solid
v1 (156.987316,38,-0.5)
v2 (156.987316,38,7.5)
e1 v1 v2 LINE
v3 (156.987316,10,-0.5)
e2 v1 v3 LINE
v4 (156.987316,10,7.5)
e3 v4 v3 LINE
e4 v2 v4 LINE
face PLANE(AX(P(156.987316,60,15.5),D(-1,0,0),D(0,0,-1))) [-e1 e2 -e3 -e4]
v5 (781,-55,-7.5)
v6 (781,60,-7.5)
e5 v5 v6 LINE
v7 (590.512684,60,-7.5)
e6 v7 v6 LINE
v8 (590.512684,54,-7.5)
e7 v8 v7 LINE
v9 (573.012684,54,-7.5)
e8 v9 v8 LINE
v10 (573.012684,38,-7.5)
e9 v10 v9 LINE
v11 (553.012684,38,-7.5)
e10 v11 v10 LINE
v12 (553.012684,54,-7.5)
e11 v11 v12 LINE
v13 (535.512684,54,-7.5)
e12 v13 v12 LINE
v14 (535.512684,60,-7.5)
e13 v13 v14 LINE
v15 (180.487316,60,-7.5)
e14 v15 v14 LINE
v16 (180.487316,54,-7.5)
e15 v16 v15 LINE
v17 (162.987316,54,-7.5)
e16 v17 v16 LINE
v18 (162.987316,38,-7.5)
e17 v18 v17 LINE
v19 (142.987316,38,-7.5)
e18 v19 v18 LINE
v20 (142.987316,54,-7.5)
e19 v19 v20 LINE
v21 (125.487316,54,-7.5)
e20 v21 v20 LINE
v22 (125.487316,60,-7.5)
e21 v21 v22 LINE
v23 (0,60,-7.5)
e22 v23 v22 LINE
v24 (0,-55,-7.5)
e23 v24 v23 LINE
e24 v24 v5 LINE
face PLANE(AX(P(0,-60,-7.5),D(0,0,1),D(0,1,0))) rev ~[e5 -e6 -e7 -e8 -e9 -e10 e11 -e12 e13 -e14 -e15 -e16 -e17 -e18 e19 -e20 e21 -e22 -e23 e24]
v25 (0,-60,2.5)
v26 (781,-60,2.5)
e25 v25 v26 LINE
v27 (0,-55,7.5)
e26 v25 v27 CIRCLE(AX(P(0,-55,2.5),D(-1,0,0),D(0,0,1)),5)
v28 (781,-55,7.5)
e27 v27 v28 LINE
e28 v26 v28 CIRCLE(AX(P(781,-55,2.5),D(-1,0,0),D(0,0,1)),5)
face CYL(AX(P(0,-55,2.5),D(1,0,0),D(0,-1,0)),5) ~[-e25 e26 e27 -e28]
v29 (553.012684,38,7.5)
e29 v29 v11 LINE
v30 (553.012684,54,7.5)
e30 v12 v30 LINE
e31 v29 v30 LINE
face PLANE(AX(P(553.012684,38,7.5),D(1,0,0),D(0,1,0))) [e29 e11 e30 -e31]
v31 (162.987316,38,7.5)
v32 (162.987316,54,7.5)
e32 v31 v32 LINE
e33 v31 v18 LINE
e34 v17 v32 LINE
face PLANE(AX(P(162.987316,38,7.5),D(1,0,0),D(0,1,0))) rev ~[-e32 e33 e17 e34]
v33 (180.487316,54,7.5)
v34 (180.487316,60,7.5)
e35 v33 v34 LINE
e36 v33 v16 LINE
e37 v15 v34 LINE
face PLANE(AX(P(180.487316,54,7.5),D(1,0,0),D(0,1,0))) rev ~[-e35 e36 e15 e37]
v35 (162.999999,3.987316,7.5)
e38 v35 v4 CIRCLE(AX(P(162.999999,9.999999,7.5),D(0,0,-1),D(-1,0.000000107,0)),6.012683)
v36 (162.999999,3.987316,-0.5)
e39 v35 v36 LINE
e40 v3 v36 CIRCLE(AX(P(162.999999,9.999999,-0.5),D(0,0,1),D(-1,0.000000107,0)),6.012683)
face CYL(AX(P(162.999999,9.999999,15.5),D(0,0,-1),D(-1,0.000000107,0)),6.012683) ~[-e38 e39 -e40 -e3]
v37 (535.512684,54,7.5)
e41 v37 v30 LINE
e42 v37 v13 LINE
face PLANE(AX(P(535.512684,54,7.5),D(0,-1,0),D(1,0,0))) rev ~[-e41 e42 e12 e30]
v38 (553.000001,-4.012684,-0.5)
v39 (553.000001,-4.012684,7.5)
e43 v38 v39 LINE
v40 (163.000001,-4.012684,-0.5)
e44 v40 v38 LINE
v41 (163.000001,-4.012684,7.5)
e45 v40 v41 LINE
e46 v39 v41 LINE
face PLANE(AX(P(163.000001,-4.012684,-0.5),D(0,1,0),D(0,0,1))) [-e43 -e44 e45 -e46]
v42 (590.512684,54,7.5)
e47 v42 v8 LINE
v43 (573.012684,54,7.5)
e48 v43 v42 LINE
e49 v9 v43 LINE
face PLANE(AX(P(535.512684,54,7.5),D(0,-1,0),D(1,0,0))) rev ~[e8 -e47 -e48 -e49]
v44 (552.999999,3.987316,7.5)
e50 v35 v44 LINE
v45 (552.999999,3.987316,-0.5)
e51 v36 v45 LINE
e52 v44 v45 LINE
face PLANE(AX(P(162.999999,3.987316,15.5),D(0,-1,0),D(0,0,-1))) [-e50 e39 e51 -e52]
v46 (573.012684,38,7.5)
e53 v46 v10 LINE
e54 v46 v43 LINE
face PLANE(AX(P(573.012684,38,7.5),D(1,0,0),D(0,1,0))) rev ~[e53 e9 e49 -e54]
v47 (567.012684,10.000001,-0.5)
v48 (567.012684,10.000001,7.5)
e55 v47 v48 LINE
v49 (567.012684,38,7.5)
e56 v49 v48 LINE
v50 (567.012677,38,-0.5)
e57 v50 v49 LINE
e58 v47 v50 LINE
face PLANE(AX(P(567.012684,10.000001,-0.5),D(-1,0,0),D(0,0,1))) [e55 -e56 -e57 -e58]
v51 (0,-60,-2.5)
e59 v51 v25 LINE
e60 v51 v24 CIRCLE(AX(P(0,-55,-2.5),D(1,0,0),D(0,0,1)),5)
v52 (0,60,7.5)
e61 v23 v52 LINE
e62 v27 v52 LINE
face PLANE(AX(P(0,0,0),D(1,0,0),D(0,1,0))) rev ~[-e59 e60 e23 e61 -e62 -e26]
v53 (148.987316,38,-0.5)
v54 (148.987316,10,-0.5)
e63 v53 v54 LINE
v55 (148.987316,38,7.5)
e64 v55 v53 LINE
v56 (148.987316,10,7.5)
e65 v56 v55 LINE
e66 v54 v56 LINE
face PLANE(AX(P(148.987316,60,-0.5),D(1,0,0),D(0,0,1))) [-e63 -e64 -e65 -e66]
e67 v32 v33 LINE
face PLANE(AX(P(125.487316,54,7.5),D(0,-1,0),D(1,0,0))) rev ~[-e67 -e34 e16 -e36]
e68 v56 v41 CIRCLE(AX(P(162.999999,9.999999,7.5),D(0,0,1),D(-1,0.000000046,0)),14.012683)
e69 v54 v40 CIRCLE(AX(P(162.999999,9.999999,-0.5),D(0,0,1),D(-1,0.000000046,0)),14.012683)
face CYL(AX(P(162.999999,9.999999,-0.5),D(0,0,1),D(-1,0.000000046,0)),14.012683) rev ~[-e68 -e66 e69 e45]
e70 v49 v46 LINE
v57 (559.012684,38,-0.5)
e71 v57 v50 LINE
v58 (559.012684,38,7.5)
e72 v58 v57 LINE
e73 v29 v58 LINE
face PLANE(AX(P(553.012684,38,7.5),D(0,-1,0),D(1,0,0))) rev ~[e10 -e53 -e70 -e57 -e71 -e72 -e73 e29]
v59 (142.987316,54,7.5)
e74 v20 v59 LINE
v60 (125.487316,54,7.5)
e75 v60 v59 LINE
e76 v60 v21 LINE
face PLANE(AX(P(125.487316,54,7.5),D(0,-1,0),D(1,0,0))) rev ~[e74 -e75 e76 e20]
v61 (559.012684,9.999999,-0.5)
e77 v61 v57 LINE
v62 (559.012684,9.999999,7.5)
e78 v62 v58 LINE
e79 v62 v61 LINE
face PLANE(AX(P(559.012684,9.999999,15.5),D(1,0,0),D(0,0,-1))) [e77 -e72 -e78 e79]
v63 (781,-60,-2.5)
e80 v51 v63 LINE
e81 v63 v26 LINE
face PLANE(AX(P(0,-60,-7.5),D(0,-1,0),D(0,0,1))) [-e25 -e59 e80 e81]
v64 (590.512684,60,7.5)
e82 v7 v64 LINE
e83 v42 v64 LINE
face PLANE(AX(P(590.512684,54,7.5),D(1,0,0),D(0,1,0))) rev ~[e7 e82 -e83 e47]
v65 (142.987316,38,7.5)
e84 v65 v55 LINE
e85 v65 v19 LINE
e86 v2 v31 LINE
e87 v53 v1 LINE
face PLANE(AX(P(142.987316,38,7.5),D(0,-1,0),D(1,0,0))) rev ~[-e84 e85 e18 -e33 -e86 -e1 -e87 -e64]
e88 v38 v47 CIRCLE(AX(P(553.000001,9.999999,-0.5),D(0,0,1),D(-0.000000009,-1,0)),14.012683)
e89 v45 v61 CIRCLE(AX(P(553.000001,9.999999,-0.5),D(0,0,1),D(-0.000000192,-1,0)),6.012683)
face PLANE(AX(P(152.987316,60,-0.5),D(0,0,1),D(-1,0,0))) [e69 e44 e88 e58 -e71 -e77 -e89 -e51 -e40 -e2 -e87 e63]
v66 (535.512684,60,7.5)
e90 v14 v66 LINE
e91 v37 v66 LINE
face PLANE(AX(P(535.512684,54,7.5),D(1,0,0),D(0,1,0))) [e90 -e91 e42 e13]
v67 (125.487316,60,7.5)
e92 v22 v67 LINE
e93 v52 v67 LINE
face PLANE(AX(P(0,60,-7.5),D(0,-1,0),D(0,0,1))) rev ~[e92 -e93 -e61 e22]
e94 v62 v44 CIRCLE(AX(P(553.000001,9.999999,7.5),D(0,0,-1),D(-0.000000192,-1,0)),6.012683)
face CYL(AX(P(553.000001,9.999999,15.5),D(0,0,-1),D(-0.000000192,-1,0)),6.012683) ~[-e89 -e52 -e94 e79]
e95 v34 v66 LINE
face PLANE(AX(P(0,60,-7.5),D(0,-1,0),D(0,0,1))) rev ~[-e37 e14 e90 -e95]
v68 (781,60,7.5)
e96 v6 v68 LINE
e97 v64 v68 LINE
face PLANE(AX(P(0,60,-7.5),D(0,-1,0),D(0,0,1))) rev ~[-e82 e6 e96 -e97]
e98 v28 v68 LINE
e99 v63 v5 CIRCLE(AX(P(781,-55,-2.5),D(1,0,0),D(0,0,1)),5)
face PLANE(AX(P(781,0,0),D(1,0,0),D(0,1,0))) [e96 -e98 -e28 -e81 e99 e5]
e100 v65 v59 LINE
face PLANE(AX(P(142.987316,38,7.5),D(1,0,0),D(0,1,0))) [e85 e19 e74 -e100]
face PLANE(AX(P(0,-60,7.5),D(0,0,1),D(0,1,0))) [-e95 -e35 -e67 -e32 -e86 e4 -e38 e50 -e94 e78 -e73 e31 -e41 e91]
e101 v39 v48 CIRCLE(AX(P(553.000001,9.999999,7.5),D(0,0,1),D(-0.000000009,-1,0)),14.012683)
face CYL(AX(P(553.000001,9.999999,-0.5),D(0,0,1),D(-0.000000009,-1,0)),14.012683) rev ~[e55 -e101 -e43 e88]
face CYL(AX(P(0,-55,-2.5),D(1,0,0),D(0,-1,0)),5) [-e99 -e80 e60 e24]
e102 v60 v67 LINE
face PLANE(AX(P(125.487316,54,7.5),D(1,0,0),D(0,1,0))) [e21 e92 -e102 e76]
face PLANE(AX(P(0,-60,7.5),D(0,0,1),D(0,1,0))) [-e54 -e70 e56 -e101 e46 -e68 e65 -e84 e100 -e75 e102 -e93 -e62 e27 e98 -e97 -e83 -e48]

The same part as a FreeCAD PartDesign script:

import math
import FreeCAD as App
import Part
import Sketcher
from FreeCAD import Vector


def edges_at(feature, points):
    """Names of the edges that pass closest to the given points."""
    edges = feature.Shape.Edges
    near = lambda p: min(range(len(edges)), key=lambda i: edges[i].distToShape(Part.Vertex(*p))[0])
    return sorted({f"Edge{near(p) + 1}" for p in points})

doc = App.newDocument("Part")
body = doc.addObject("PartDesign::Body", "Body")

sketch1 = body.newObject("Sketcher::SketchObject", "Sketch")
sketch1.AttachmentSupport = (doc.getObject("YZ_Plane"), [""])
sketch1.MapMode = "FlatFace"
sketch1.addGeometry(Part.LineSegment(Vector(-60, 8, 0), Vector(-60, -8, 0)), False)
sketch1.addGeometry(Part.LineSegment(Vector(-60, -8, 0), Vector(60, -8, 0)), False)
sketch1.addGeometry(Part.LineSegment(Vector(60, -8, 0), Vector(60, 8, 0)), False)
sketch1.addGeometry(Part.LineSegment(Vector(60, 8, 0), Vector(-60, 8, 0)), False)
sketch1.addConstraint(Sketcher.Constraint("Coincident", 0, 2, 1, 1))
sketch1.addConstraint(Sketcher.Constraint("Coincident", 1, 2, 2, 1))
sketch1.addConstraint(Sketcher.Constraint("Coincident", 2, 2, 3, 1))
sketch1.addConstraint(Sketcher.Constraint("Coincident", 3, 2, 0, 1))
sketch1.addConstraint(Sketcher.Constraint("Vertical", 0))
sketch1.addConstraint(Sketcher.Constraint("Horizontal", 1))
sketch1.addConstraint(Sketcher.Constraint("Vertical", 2))
sketch1.addConstraint(Sketcher.Constraint("Horizontal", 3))
sketch1.addConstraint(Sketcher.Constraint("Symmetric", 0, 2, 2, 2, -1, 1))
sketch1.addConstraint(Sketcher.Constraint("DistanceX", 1, 1, 1, 2, 120.0))
sketch1.addConstraint(Sketcher.Constraint("DistanceY", 0, 2, 0, 1, 15.0))
pad1 = body.newObject("PartDesign::Pad", "Pad")
pad1.Profile = sketch1
pad1.Length = 781

sketch2 = body.newObject("Sketcher::SketchObject", "Sketch001")
sketch2.AttachmentSupport = (doc.getObject("XZ_Plane"), [""])
sketch2.MapMode = "FlatFace"
sketch2.AttachmentOffset = App.Placement(Vector(0, 0, -60), App.Rotation())
sketch2.addGeometry(Part.LineSegment(Vector(157, 16, 0), Vector(157, 0, 0)), False)
sketch2.addGeometry(Part.LineSegment(Vector(157, 0, 0), Vector(149, 0, 0)), False)
sketch2.addGeometry(Part.LineSegment(Vector(149, 0, 0), Vector(149, 16, 0)), False)
sketch2.addGeometry(Part.LineSegment(Vector(149, 16, 0), Vector(157, 16, 0)), False)
sketch2.addConstraint(Sketcher.Constraint("Coincident", 0, 2, 1, 1))
sketch2.addConstraint(Sketcher.Constraint("Coincident", 1, 2, 2, 1))
sketch2.addConstraint(Sketcher.Constraint("Coincident", 2, 2, 3, 1))
sketch2.addConstraint(Sketcher.Constraint("Coincident", 3, 2, 0, 1))
sketch2.addConstraint(Sketcher.Constraint("Vertical", 0))
sketch2.addConstraint(Sketcher.Constraint("Horizontal", 1))
sketch2.addConstraint(Sketcher.Constraint("Vertical", 2))
sketch2.addConstraint(Sketcher.Constraint("Horizontal", 3))
sketch2.addConstraint(Sketcher.Constraint("DistanceX", 1, 2, 1, 1, 8.0))
sketch2.addConstraint(Sketcher.Constraint("DistanceY", 0, 2, 0, 1, 16.0))
sketch2.addConstraint(Sketcher.Constraint("DistanceY", 0, 2, -1, 1, 0.5))
sketch2.addConstraint(Sketcher.Constraint("DistanceX", -1, 1, 0, 2, 156.987316))

sketch3 = body.newObject("Sketcher::SketchObject", "Sketch002")
sketch3.AttachmentSupport = (doc.getObject("XY_Plane"), [""])
sketch3.MapMode = "FlatFace"
sketch3.AttachmentOffset = App.Placement(Vector(0, 0, 7.5), App.Rotation())
sketch3.addGeometry(Part.LineSegment(Vector(153, 60, 0), Vector(153, 10, 0)), False)
sketch3.addGeometry(Part.ArcOfCircle(Part.Circle(Vector(163, 10, 0), Vector(0, 0, 1), 10), math.radians(180), math.radians(270)), False)
sketch3.addGeometry(Part.LineSegment(Vector(163, 0, 0), Vector(553, 0, 0)), False)
sketch3.addGeometry(Part.ArcOfCircle(Part.Circle(Vector(553, 10, 0), Vector(0, 0, 1), 10), math.radians(-90), math.radians(0)), False)
sketch3.addGeometry(Part.LineSegment(Vector(563, 10, 0), Vector(563, 60, 0)), False)
sketch3.addConstraint(Sketcher.Constraint("Tangent", 0, 2, 1, 1))
sketch3.addConstraint(Sketcher.Constraint("Tangent", 1, 2, 2, 1))
sketch3.addConstraint(Sketcher.Constraint("Tangent", 2, 2, 3, 1))
sketch3.addConstraint(Sketcher.Constraint("Tangent", 3, 2, 4, 1))
sketch3.addConstraint(Sketcher.Constraint("Vertical", 0))
sketch3.addConstraint(Sketcher.Constraint("Horizontal", 2))
sketch3.addConstraint(Sketcher.Constraint("Vertical", 4))
sketch3.addConstraint(Sketcher.Constraint("Equal", 1, 3))
sketch3.addConstraint(Sketcher.Constraint("PointOnObject", 1, 2, -1))
sketch3.addConstraint(Sketcher.Constraint("Horizontal", 0, 1, 4, 2))
sketch3.addConstraint(Sketcher.Constraint("Radius", 1, 9.999999))
sketch3.addConstraint(Sketcher.Constraint("DistanceX", 2, 1, 2, 2, 390.0))
sketch3.addConstraint(Sketcher.Constraint("DistanceY", 0, 2, 0, 1, 50.0))
sketch3.addConstraint(Sketcher.Constraint("DistanceX", -1, 1, 1, 3, 162.999999))
doc.recompute()

subtractivepipe = body.newObject("PartDesign::SubtractivePipe", "SubtractivePipe")
subtractivepipe.Profile = sketch2
subtractivepipe.Spine = (sketch3, ["Edge1", "Edge2", "Edge3", "Edge4", "Edge5"])

sketch4 = body.newObject("Sketcher::SketchObject", "Sketch003")
sketch4.AttachmentSupport = (doc.getObject("XY_Plane"), [""])
sketch4.MapMode = "FlatFace"
sketch4.AttachmentOffset = App.Placement(Vector(0, 0, 7.5), App.Rotation())
sketch4.addGeometry(Part.LineSegment(Vector(125, 66, 0), Vector(125, 54, 0)), False)
sketch4.addGeometry(Part.LineSegment(Vector(125, 54, 0), Vector(180, 54, 0)), False)
sketch4.addGeometry(Part.LineSegment(Vector(180, 54, 0), Vector(180, 66, 0)), False)
sketch4.addGeometry(Part.LineSegment(Vector(180, 66, 0), Vector(125, 66, 0)), False)
sketch4.addGeometry(Part.LineSegment(Vector(536, 66, 0), Vector(536, 54, 0)), False)
sketch4.addGeometry(Part.LineSegment(Vector(536, 54, 0), Vector(591, 54, 0)), False)
sketch4.addGeometry(Part.LineSegment(Vector(591, 54, 0), Vector(591, 66, 0)), False)
sketch4.addGeometry(Part.LineSegment(Vector(591, 66, 0), Vector(536, 66, 0)), False)
sketch4.addConstraint(Sketcher.Constraint("Coincident", 0, 2, 1, 1))
sketch4.addConstraint(Sketcher.Constraint("Coincident", 1, 2, 2, 1))
sketch4.addConstraint(Sketcher.Constraint("Coincident", 2, 2, 3, 1))
sketch4.addConstraint(Sketcher.Constraint("Coincident", 3, 2, 0, 1))
sketch4.addConstraint(Sketcher.Constraint("Coincident", 4, 2, 5, 1))
sketch4.addConstraint(Sketcher.Constraint("Coincident", 5, 2, 6, 1))
sketch4.addConstraint(Sketcher.Constraint("Coincident", 6, 2, 7, 1))
sketch4.addConstraint(Sketcher.Constraint("Coincident", 7, 2, 4, 1))
sketch4.addConstraint(Sketcher.Constraint("Vertical", 0))
sketch4.addConstraint(Sketcher.Constraint("Horizontal", 1))
sketch4.addConstraint(Sketcher.Constraint("Vertical", 2))
sketch4.addConstraint(Sketcher.Constraint("Horizontal", 3))
sketch4.addConstraint(Sketcher.Constraint("Vertical", 4))
sketch4.addConstraint(Sketcher.Constraint("Horizontal", 5))
sketch4.addConstraint(Sketcher.Constraint("Vertical", 6))
sketch4.addConstraint(Sketcher.Constraint("Horizontal", 7))
sketch4.addConstraint(Sketcher.Constraint("Horizontal", 1, 2, 4, 2))
sketch4.addConstraint(Sketcher.Constraint("Horizontal", 3, 2, 6, 2))
sketch4.addConstraint(Sketcher.Constraint("Equal", 3, 5))
sketch4.addConstraint(Sketcher.Constraint("DistanceX", 1, 1, 1, 2, 55.0))
sketch4.addConstraint(Sketcher.Constraint("DistanceY", 0, 2, 0, 1, 12.0))
sketch4.addConstraint(Sketcher.Constraint("DistanceY", -1, 1, 0, 2, 54.0))
sketch4.addConstraint(Sketcher.Constraint("DistanceX", 1, 2, 4, 2, 355.025368))
sketch4.addConstraint(Sketcher.Constraint("DistanceX", -1, 1, 0, 2, 125.487316))
pocket1 = body.newObject("PartDesign::Pocket", "Pocket")
pocket1.Profile = sketch4
pocket1.Length = 25

sketch5 = body.newObject("Sketcher::SketchObject", "Sketch004")
sketch5.AttachmentSupport = (doc.getObject("XY_Plane"), [""])
sketch5.MapMode = "FlatFace"
sketch5.AttachmentOffset = App.Placement(Vector(0, 0, 7.5), App.Rotation())
sketch5.addGeometry(Part.LineSegment(Vector(143, 70, 0), Vector(143, 38, 0)), False)
sketch5.addGeometry(Part.LineSegment(Vector(143, 38, 0), Vector(163, 38, 0)), False)
sketch5.addGeometry(Part.LineSegment(Vector(163, 38, 0), Vector(163, 70, 0)), False)
sketch5.addGeometry(Part.LineSegment(Vector(163, 70, 0), Vector(143, 70, 0)), False)
sketch5.addConstraint(Sketcher.Constraint("Coincident", 0, 2, 1, 1))
sketch5.addConstraint(Sketcher.Constraint("Coincident", 1, 2, 2, 1))
sketch5.addConstraint(Sketcher.Constraint("Coincident", 2, 2, 3, 1))
sketch5.addConstraint(Sketcher.Constraint("Coincident", 3, 2, 0, 1))
sketch5.addConstraint(Sketcher.Constraint("Vertical", 0))
sketch5.addConstraint(Sketcher.Constraint("Horizontal", 1))
sketch5.addConstraint(Sketcher.Constraint("Vertical", 2))
sketch5.addConstraint(Sketcher.Constraint("Horizontal", 3))
sketch5.addConstraint(Sketcher.Constraint("DistanceX", 1, 1, 1, 2, 20.0))
sketch5.addConstraint(Sketcher.Constraint("DistanceY", 0, 2, 0, 1, 32.0))
sketch5.addConstraint(Sketcher.Constraint("DistanceY", -1, 1, 0, 2, 38.0))
sketch5.addConstraint(Sketcher.Constraint("DistanceX", -1, 1, 0, 2, 142.987316))
pocket2 = body.newObject("PartDesign::Pocket", "Pocket001")
pocket2.Profile = sketch5
pocket2.Length = 25

sketch6 = body.newObject("Sketcher::SketchObject", "Sketch005")
sketch6.AttachmentSupport = (doc.getObject("XY_Plane"), [""])
sketch6.MapMode = "FlatFace"
sketch6.AttachmentOffset = App.Placement(Vector(0, 0, 7.5), App.Rotation())
sketch6.addGeometry(Part.LineSegment(Vector(553, 70, 0), Vector(553, 38, 0)), False)
sketch6.addGeometry(Part.LineSegment(Vector(553, 38, 0), Vector(573, 38, 0)), False)
sketch6.addGeometry(Part.LineSegment(Vector(573, 38, 0), Vector(573, 70, 0)), False)
sketch6.addGeometry(Part.LineSegment(Vector(573, 70, 0), Vector(553, 70, 0)), False)
sketch6.addConstraint(Sketcher.Constraint("Coincident", 0, 2, 1, 1))
sketch6.addConstraint(Sketcher.Constraint("Coincident", 1, 2, 2, 1))
sketch6.addConstraint(Sketcher.Constraint("Coincident", 2, 2, 3, 1))
sketch6.addConstraint(Sketcher.Constraint("Coincident", 3, 2, 0, 1))
sketch6.addConstraint(Sketcher.Constraint("Vertical", 0))
sketch6.addConstraint(Sketcher.Constraint("Horizontal", 1))
sketch6.addConstraint(Sketcher.Constraint("Vertical", 2))
sketch6.addConstraint(Sketcher.Constraint("Horizontal", 3))
sketch6.addConstraint(Sketcher.Constraint("DistanceX", 1, 1, 1, 2, 20.0))
sketch6.addConstraint(Sketcher.Constraint("DistanceY", 0, 2, 0, 1, 32.0))
sketch6.addConstraint(Sketcher.Constraint("DistanceY", -1, 1, 0, 2, 38.0))
sketch6.addConstraint(Sketcher.Constraint("DistanceX", -1, 1, 0, 2, 553.012684))
pocket3 = body.newObject("PartDesign::Pocket", "Pocket002")
pocket3.Profile = sketch6
pocket3.Length = 25
doc.recompute()

fillet = body.newObject("PartDesign::Fillet", "Fillet")
fillet.Base = (pocket3, edges_at(pocket3, [(390.5, -60, -7.5), (390.5, -60, 7.5)]))
fillet.Radius = 5

doc.recompute()
